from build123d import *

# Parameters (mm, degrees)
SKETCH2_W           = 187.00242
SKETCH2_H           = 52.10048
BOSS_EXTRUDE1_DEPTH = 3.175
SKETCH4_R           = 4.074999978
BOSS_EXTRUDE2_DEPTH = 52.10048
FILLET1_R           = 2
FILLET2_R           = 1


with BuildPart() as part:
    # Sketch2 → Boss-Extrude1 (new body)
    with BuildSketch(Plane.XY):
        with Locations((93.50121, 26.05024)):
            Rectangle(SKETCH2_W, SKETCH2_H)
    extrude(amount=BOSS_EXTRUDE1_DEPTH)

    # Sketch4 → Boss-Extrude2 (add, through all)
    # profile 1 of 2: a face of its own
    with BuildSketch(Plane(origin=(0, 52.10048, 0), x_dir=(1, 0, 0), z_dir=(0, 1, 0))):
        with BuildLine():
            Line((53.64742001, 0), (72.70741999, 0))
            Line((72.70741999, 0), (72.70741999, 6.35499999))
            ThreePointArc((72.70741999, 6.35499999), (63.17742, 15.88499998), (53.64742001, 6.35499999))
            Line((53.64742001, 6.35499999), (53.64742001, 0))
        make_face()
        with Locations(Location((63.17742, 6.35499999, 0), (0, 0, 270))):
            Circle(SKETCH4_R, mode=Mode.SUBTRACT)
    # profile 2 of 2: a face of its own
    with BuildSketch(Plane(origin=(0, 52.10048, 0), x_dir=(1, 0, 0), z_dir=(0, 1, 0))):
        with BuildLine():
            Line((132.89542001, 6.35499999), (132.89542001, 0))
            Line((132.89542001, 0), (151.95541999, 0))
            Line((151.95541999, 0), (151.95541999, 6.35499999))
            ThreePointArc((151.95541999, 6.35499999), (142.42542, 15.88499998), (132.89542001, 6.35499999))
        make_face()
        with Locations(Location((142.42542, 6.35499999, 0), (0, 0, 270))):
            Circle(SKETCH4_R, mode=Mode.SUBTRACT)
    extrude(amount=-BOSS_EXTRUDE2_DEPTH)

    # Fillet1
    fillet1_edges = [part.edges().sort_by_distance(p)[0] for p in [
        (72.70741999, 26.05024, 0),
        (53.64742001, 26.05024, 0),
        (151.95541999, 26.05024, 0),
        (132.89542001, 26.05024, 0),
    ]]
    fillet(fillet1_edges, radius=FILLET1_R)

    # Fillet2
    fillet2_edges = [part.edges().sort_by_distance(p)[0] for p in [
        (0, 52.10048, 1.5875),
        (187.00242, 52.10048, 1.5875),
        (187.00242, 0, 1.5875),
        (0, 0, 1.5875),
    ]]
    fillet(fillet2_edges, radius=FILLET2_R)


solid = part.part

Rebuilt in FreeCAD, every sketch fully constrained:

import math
import FreeCAD as App
import Part
import Sketcher

V = App.Vector


def edges_at(feature, points):
    """Names of the edges that pass closest to the given points."""
    edges = feature.Shape.Edges
    near = lambda p: min(range(len(edges)), key=lambda i: edges[i].distToShape(Part.Vertex(*p))[0])
    return sorted({f"Edge{near(p) + 1}" for p in points})

doc = App.newDocument("Part")
body = doc.addObject("PartDesign::Body", "Body")

# Sketch on XY plane
sketch1 = body.newObject("Sketcher::SketchObject", "Sketch")
sketch1.AttachmentSupport = (doc.getObject("XY_Plane"), [""])
sketch1.MapMode = "FlatFace"
sketch1.addGeometry([
    Part.LineSegment(V(0, 52.10048, 0), V(0, 0, 0)),
    Part.LineSegment(V(0, 0, 0), V(187.00242, 0, 0)),
    Part.LineSegment(V(187.00242, 0, 0), V(187.00242, 52.10048, 0)),
    Part.LineSegment(V(187.00242, 52.10048, 0), V(0, 52.10048, 0)),
], False)
sketch1.addConstraint([
    Sketcher.Constraint("Coincident", 0, 2, 1, 1),
    Sketcher.Constraint("Coincident", 1, 2, 2, 1),
    Sketcher.Constraint("Coincident", 2, 2, 3, 1),
    Sketcher.Constraint("Coincident", 3, 2, 0, 1),
    Sketcher.Constraint("Vertical", 0),
    Sketcher.Constraint("Horizontal", 1),
    Sketcher.Constraint("Vertical", 2),
    Sketcher.Constraint("Horizontal", 3),
    Sketcher.Constraint("Coincident", 0, 2, -1, 1),
    Sketcher.Constraint("DistanceX", 1, 1, 1, 2, 187.00242),
    Sketcher.Constraint("DistanceY", 0, 2, 0, 1, 52.10048),
])
pad1 = body.newObject("PartDesign::Pad", "Pad")
pad1.Profile = sketch1
pad1.Length = 3.175

# Sketch on XZ plane
sketch2 = body.newObject("Sketcher::SketchObject", "Sketch001")
sketch2.AttachmentSupport = (doc.getObject("XZ_Plane"), [""])
sketch2.MapMode = "FlatFace"
sketch2.AttachmentOffset = App.Placement(V(0, 0, -52.10048), App.Rotation())
sketch2.addGeometry([
    Part.LineSegment(V(53.64742, 0, 0), V(72.70742, 0, 0)),  # 0
    Part.LineSegment(V(72.70742, 0, 0), V(72.70742, -6.355, 0)),  # 1
    Part.ArcOfCircle(Part.Circle(V(63.17742, -6.355, 0), V(0, 0, 1), 9.53), math.radians(180), math.radians(360)),  # 2
    Part.LineSegment(V(53.64742, -6.355, 0), V(53.64742, 0, 0)),  # 3
    Part.Circle(V(63.17742, -6.355, 0), V(0, 0, 1), 4.075),  # 4
    Part.LineSegment(V(132.89542, -6.355, 0), V(132.89542, 0, 0)),  # 5
    Part.LineSegment(V(132.89542, 0, 0), V(151.95542, 0, 0)),  # 6
    Part.LineSegment(V(151.95542, 0, 0), V(151.95542, -6.355, 0)),  # 7
    Part.ArcOfCircle(Part.Circle(V(142.42542, -6.355, 0), V(0, 0, 1), 9.53), math.radians(180), math.radians(360)),  # 8
    Part.Circle(V(142.42542, -6.355, 0), V(0, 0, 1), 4.075),  # 9
], False)
sketch2.addConstraint([
    Sketcher.Constraint("Coincident", 0, 2, 1, 1),
    Sketcher.Constraint("Tangent", 1, 2, 2, 2),
    Sketcher.Constraint("Tangent", 2, 1, 3, 1),
    Sketcher.Constraint("Coincident", 3, 2, 0, 1),
    Sketcher.Constraint("Coincident", 5, 2, 6, 1),
    Sketcher.Constraint("Coincident", 6, 2, 7, 1),
    Sketcher.Constraint("Tangent", 7, 2, 8, 2),
    Sketcher.Constraint("Tangent", 8, 1, 5, 1),
    Sketcher.Constraint("Horizontal", 0),
    Sketcher.Constraint("Vertical", 1),
    Sketcher.Constraint("Vertical", 3),
    Sketcher.Constraint("Vertical", 5),
    Sketcher.Constraint("Horizontal", 6),
    Sketcher.Constraint("Vertical", 7),
    Sketcher.Constraint("Coincident", 4, 3, 2, 3),
    Sketcher.Constraint("Coincident", 9, 3, 8, 3),
    Sketcher.Constraint("Equal", 2, 8),
    Sketcher.Constraint("Equal", 4, 9),
    Sketcher.Constraint("PointOnObject", 0, 2, -1),
    Sketcher.Constraint("PointOnObject", 5, 2, -1),
    Sketcher.Constraint("Horizontal", 4, 3, 8, 3),
    Sketcher.Constraint("Diameter", 4, 8.15),
    Sketcher.Constraint("Radius", 2, 9.53),
    Sketcher.Constraint("DistanceY", 1, 2, 1, 1, 6.355),
    Sketcher.Constraint("DistanceX", 2, 3, 8, 3, 79.248),
    Sketcher.Constraint("DistanceX", -1, 1, 2, 3, 63.17742),
])
pad2 = body.newObject("PartDesign::Pad", "Pad001")
pad2.Profile = sketch2
pad2.Length = 52.10048
doc.recompute()

fillet = body.newObject("PartDesign::Fillet", "Fillet")
fillet.Base = (pad2, edges_at(pad2, [
    (72.707, 26.05, 0),
    (53.647, 26.05, 0),
    (151.955, 26.05, 0),
    (132.895, 26.05, 0),
]))
fillet.Radius = 2
doc.recompute()

fillet2 = body.newObject("PartDesign::Fillet", "Fillet001")
fillet2.Base = (fillet, edges_at(fillet, [
    (0, 52.1, 1.587),
    (187.002, 52.1, 1.587),
    (187.002, 0, 1.587),
    (0, 0, 1.587),
]))
fillet2.Radius = 1

doc.recompute()
